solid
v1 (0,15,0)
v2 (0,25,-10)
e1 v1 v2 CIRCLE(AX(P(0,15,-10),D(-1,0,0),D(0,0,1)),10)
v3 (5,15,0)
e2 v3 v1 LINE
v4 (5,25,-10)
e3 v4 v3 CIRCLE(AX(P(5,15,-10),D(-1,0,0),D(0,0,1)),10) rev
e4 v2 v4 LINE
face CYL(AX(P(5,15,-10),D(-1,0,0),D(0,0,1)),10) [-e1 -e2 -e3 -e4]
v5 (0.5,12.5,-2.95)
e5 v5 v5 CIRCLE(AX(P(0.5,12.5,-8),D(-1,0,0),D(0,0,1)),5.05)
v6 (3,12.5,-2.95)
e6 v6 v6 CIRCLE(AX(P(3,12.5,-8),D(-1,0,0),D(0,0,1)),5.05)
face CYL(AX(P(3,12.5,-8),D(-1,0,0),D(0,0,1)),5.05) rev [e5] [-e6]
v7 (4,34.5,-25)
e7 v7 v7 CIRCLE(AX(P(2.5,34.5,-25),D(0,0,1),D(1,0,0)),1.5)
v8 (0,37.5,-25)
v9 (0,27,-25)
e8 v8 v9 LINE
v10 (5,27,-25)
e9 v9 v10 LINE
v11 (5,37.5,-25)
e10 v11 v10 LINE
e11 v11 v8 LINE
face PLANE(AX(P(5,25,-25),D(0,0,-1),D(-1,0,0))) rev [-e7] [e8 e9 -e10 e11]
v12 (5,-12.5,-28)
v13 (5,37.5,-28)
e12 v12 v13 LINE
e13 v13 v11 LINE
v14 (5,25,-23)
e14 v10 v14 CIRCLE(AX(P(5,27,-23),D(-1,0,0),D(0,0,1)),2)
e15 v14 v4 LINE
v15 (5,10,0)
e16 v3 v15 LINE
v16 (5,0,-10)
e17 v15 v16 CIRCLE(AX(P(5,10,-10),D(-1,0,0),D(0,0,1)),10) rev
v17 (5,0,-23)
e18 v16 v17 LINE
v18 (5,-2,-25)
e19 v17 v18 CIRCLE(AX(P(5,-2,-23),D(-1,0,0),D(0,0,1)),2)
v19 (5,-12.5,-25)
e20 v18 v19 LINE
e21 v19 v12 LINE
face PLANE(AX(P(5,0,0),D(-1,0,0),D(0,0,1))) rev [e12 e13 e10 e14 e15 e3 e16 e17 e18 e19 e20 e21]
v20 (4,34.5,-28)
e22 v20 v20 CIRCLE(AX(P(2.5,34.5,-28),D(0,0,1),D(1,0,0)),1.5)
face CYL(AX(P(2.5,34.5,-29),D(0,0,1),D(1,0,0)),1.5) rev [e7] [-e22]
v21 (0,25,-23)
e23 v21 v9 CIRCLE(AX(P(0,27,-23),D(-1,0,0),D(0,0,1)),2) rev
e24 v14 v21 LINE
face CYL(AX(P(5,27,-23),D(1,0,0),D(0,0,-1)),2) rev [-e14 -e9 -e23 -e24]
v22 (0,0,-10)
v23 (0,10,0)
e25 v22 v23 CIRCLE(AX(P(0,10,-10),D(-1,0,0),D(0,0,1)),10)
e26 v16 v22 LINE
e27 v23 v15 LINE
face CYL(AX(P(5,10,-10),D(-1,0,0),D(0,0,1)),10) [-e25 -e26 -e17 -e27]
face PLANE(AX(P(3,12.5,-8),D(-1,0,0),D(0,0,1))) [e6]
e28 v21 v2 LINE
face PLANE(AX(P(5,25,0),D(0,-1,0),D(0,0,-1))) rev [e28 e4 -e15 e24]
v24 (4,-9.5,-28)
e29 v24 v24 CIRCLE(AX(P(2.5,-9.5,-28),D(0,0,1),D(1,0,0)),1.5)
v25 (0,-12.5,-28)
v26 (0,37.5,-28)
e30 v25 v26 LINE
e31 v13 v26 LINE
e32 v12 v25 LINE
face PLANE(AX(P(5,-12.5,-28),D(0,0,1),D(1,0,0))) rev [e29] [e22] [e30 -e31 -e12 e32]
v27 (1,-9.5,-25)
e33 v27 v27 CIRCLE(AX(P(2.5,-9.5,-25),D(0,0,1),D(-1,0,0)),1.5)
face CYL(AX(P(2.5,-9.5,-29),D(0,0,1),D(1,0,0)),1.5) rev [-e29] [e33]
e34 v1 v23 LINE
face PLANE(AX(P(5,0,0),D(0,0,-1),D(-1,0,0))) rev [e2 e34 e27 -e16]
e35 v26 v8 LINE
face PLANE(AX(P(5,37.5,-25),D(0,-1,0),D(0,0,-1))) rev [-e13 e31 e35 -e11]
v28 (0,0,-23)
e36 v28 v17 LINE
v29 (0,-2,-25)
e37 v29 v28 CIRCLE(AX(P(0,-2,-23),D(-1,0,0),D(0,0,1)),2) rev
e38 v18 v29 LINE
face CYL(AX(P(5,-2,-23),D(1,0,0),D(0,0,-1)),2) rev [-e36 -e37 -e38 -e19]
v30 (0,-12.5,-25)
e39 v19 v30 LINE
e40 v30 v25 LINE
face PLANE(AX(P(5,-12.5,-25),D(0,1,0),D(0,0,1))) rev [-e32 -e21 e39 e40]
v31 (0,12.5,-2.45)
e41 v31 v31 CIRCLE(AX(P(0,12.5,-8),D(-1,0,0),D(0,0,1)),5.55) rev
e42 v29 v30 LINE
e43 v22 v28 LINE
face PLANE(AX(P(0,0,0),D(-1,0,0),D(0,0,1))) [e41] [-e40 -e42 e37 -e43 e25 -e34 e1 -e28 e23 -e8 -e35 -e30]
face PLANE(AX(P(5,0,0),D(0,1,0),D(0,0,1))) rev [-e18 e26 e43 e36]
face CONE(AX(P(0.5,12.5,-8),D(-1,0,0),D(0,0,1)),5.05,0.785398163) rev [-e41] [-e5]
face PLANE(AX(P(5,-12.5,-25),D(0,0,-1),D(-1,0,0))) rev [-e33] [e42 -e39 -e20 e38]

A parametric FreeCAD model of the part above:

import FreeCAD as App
import Part
import Sketcher

V = App.Vector
Q = App.Units.Quantity


def edges_at(feature, points):
    """Names of the edges that pass closest to the given points."""
    edges = feature.Shape.Edges
    near = lambda p: min(range(len(edges)), key=lambda i: edges[i].distToShape(Part.Vertex(*p))[0])
    return sorted({f"Edge{near(p) + 1}" for p in points})


def add_polygon(sketch, points):
    """Adds a closed chain of lines whose ends are joined by coincident constraints."""
    first, n = sketch.GeometryCount, len(points)
    for a, b in zip(points, points[1:] + points[:1]):
        sketch.addGeometry(Part.LineSegment(App.Vector(*a, 0), App.Vector(*b, 0)), False)
    for i in range(n):
        sketch.addConstraint(Sketcher.Constraint("Coincident", first + i, 2, first + (i + 1) % n, 1))

doc = App.newDocument("Part")
body = doc.addObject("PartDesign::Body", "Body")

sketch1 = body.newObject("Sketcher::SketchObject", "Sketch")
sketch1.AttachmentSupport = (doc.getObject("YZ_Plane"), [""])
sketch1.MapMode = "FlatFace"
add_polygon(sketch1, [(37.5, -25), (25, -25), (25, 0), (0, 0), (0, -25), (-12.5, -25), (-12.5, -28), (37.5, -28)])
sketch1.addConstraint(Sketcher.Constraint("Horizontal", 0))
sketch1.addConstraint(Sketcher.Constraint("Vertical", 1))
sketch1.addConstraint(Sketcher.Constraint("Horizontal", 2))
sketch1.addConstraint(Sketcher.Constraint("Vertical", 3))
sketch1.addConstraint(Sketcher.Constraint("Horizontal", 4))
sketch1.addConstraint(Sketcher.Constraint("Vertical", 5))
sketch1.addConstraint(Sketcher.Constraint("Horizontal", 6))
sketch1.addConstraint(Sketcher.Constraint("Vertical", 7))
sketch1.addConstraint(Sketcher.Constraint("Coincident", 2, 2, -1, 1))
sketch1.addConstraint(Sketcher.Constraint("Horizontal", 0, 2, 3, 2))
sketch1.addConstraint(Sketcher.Constraint("Equal", 0, 4))
sketch1.addConstraint(Sketcher.Constraint("Equal", 2, 1))
sketch1.addConstraint(Sketcher.Constraint("DistanceX", 2, 2, 2, 1, Q("25 mm")))
sketch1.addConstraint(Sketcher.Constraint("DistanceX", 6, 1, 6, 2, Q("50 mm")))
sketch1.addConstraint(Sketcher.Constraint("DistanceY", 5, 2, 5, 1, Q("3 mm")))
pad1 = body.newObject("PartDesign::Pad", "Pad")
pad1.Profile = sketch1
pad1.Length = 5

sketch2 = body.newObject("Sketcher::SketchObject", "Sketch001")
sketch2.AttachmentSupport = (doc.getObject("XY_Plane"), [""])
sketch2.MapMode = "FlatFace"
sketch2.AttachmentOffset = App.Placement(V(0, 0, -25), App.Rotation())
sketch2.addGeometry(Part.Circle(V(2.5, 34.5, 0), V(0, 0, 1), 1.5), False)
sketch2.addGeometry(Part.Circle(V(2.5, -9.5, 0), V(0, 0, 1), 1.5), False)
sketch2.addConstraint(Sketcher.Constraint("Equal", 0, 1))
sketch2.addConstraint(Sketcher.Constraint("Vertical", 0, 3, 1, 3))
sketch2.addConstraint(Sketcher.Constraint("Diameter", 0, Q("3 mm")))
sketch2.addConstraint(Sketcher.Constraint("DistanceY", 1, 3, 0, 3, Q("44 mm")))
sketch2.addConstraint(Sketcher.Constraint("DistanceX", -1, 1, 0, 3, Q("2.5 mm")))
sketch2.addConstraint(Sketcher.Constraint("DistanceY", -1, 1, 0, 3, Q("34.5 mm")))
pocket1 = body.newObject("PartDesign::Pocket", "Pocket")
pocket1.Profile = sketch2
pocket1.Length = 4

sketch3 = body.newObject("Sketcher::SketchObject", "Sketch002")
sketch3.AttachmentSupport = (doc.getObject("YZ_Plane"), [""])
sketch3.MapMode = "FlatFace"
sketch3.addGeometry(Part.Circle(V(12.5, -8, 0), V(0, 0, 1), 5.05), False)
sketch3.addConstraint(Sketcher.Constraint("Diameter", 0, Q("10.1 mm")))
sketch3.addConstraint(Sketcher.Constraint("DistanceY", 0, 3, -1, 1, Q("8 mm")))
sketch3.addConstraint(Sketcher.Constraint("DistanceX", -1, 1, 0, 3, Q("12.5 mm")))
pocket2 = body.newObject("PartDesign::Pocket", "Pocket001")
pocket2.Profile = sketch3
pocket2.Length = 3
pocket2.Reversed = True
doc.recompute()

chamfer = body.newObject("PartDesign::Chamfer", "Chamfer")
chamfer.Base = (pocket2, edges_at(pocket2, [(0, 12.5, -13.05)]))
chamfer.Size = 0.5
doc.recompute()

fillet = body.newObject("PartDesign::Fillet", "Fillet")
fillet.Base = (chamfer, edges_at(chamfer, [(2.5, 25, 0), (2.5, 0, 0)]))
fillet.Radius = 10
doc.recompute()

fillet2 = body.newObject("PartDesign::Fillet", "Fillet001")
fillet2.Base = (fillet, edges_at(fillet, [(2.5, 25, -25), (2.5, 0, -25)]))
fillet2.Radius = 2

doc.recompute()
